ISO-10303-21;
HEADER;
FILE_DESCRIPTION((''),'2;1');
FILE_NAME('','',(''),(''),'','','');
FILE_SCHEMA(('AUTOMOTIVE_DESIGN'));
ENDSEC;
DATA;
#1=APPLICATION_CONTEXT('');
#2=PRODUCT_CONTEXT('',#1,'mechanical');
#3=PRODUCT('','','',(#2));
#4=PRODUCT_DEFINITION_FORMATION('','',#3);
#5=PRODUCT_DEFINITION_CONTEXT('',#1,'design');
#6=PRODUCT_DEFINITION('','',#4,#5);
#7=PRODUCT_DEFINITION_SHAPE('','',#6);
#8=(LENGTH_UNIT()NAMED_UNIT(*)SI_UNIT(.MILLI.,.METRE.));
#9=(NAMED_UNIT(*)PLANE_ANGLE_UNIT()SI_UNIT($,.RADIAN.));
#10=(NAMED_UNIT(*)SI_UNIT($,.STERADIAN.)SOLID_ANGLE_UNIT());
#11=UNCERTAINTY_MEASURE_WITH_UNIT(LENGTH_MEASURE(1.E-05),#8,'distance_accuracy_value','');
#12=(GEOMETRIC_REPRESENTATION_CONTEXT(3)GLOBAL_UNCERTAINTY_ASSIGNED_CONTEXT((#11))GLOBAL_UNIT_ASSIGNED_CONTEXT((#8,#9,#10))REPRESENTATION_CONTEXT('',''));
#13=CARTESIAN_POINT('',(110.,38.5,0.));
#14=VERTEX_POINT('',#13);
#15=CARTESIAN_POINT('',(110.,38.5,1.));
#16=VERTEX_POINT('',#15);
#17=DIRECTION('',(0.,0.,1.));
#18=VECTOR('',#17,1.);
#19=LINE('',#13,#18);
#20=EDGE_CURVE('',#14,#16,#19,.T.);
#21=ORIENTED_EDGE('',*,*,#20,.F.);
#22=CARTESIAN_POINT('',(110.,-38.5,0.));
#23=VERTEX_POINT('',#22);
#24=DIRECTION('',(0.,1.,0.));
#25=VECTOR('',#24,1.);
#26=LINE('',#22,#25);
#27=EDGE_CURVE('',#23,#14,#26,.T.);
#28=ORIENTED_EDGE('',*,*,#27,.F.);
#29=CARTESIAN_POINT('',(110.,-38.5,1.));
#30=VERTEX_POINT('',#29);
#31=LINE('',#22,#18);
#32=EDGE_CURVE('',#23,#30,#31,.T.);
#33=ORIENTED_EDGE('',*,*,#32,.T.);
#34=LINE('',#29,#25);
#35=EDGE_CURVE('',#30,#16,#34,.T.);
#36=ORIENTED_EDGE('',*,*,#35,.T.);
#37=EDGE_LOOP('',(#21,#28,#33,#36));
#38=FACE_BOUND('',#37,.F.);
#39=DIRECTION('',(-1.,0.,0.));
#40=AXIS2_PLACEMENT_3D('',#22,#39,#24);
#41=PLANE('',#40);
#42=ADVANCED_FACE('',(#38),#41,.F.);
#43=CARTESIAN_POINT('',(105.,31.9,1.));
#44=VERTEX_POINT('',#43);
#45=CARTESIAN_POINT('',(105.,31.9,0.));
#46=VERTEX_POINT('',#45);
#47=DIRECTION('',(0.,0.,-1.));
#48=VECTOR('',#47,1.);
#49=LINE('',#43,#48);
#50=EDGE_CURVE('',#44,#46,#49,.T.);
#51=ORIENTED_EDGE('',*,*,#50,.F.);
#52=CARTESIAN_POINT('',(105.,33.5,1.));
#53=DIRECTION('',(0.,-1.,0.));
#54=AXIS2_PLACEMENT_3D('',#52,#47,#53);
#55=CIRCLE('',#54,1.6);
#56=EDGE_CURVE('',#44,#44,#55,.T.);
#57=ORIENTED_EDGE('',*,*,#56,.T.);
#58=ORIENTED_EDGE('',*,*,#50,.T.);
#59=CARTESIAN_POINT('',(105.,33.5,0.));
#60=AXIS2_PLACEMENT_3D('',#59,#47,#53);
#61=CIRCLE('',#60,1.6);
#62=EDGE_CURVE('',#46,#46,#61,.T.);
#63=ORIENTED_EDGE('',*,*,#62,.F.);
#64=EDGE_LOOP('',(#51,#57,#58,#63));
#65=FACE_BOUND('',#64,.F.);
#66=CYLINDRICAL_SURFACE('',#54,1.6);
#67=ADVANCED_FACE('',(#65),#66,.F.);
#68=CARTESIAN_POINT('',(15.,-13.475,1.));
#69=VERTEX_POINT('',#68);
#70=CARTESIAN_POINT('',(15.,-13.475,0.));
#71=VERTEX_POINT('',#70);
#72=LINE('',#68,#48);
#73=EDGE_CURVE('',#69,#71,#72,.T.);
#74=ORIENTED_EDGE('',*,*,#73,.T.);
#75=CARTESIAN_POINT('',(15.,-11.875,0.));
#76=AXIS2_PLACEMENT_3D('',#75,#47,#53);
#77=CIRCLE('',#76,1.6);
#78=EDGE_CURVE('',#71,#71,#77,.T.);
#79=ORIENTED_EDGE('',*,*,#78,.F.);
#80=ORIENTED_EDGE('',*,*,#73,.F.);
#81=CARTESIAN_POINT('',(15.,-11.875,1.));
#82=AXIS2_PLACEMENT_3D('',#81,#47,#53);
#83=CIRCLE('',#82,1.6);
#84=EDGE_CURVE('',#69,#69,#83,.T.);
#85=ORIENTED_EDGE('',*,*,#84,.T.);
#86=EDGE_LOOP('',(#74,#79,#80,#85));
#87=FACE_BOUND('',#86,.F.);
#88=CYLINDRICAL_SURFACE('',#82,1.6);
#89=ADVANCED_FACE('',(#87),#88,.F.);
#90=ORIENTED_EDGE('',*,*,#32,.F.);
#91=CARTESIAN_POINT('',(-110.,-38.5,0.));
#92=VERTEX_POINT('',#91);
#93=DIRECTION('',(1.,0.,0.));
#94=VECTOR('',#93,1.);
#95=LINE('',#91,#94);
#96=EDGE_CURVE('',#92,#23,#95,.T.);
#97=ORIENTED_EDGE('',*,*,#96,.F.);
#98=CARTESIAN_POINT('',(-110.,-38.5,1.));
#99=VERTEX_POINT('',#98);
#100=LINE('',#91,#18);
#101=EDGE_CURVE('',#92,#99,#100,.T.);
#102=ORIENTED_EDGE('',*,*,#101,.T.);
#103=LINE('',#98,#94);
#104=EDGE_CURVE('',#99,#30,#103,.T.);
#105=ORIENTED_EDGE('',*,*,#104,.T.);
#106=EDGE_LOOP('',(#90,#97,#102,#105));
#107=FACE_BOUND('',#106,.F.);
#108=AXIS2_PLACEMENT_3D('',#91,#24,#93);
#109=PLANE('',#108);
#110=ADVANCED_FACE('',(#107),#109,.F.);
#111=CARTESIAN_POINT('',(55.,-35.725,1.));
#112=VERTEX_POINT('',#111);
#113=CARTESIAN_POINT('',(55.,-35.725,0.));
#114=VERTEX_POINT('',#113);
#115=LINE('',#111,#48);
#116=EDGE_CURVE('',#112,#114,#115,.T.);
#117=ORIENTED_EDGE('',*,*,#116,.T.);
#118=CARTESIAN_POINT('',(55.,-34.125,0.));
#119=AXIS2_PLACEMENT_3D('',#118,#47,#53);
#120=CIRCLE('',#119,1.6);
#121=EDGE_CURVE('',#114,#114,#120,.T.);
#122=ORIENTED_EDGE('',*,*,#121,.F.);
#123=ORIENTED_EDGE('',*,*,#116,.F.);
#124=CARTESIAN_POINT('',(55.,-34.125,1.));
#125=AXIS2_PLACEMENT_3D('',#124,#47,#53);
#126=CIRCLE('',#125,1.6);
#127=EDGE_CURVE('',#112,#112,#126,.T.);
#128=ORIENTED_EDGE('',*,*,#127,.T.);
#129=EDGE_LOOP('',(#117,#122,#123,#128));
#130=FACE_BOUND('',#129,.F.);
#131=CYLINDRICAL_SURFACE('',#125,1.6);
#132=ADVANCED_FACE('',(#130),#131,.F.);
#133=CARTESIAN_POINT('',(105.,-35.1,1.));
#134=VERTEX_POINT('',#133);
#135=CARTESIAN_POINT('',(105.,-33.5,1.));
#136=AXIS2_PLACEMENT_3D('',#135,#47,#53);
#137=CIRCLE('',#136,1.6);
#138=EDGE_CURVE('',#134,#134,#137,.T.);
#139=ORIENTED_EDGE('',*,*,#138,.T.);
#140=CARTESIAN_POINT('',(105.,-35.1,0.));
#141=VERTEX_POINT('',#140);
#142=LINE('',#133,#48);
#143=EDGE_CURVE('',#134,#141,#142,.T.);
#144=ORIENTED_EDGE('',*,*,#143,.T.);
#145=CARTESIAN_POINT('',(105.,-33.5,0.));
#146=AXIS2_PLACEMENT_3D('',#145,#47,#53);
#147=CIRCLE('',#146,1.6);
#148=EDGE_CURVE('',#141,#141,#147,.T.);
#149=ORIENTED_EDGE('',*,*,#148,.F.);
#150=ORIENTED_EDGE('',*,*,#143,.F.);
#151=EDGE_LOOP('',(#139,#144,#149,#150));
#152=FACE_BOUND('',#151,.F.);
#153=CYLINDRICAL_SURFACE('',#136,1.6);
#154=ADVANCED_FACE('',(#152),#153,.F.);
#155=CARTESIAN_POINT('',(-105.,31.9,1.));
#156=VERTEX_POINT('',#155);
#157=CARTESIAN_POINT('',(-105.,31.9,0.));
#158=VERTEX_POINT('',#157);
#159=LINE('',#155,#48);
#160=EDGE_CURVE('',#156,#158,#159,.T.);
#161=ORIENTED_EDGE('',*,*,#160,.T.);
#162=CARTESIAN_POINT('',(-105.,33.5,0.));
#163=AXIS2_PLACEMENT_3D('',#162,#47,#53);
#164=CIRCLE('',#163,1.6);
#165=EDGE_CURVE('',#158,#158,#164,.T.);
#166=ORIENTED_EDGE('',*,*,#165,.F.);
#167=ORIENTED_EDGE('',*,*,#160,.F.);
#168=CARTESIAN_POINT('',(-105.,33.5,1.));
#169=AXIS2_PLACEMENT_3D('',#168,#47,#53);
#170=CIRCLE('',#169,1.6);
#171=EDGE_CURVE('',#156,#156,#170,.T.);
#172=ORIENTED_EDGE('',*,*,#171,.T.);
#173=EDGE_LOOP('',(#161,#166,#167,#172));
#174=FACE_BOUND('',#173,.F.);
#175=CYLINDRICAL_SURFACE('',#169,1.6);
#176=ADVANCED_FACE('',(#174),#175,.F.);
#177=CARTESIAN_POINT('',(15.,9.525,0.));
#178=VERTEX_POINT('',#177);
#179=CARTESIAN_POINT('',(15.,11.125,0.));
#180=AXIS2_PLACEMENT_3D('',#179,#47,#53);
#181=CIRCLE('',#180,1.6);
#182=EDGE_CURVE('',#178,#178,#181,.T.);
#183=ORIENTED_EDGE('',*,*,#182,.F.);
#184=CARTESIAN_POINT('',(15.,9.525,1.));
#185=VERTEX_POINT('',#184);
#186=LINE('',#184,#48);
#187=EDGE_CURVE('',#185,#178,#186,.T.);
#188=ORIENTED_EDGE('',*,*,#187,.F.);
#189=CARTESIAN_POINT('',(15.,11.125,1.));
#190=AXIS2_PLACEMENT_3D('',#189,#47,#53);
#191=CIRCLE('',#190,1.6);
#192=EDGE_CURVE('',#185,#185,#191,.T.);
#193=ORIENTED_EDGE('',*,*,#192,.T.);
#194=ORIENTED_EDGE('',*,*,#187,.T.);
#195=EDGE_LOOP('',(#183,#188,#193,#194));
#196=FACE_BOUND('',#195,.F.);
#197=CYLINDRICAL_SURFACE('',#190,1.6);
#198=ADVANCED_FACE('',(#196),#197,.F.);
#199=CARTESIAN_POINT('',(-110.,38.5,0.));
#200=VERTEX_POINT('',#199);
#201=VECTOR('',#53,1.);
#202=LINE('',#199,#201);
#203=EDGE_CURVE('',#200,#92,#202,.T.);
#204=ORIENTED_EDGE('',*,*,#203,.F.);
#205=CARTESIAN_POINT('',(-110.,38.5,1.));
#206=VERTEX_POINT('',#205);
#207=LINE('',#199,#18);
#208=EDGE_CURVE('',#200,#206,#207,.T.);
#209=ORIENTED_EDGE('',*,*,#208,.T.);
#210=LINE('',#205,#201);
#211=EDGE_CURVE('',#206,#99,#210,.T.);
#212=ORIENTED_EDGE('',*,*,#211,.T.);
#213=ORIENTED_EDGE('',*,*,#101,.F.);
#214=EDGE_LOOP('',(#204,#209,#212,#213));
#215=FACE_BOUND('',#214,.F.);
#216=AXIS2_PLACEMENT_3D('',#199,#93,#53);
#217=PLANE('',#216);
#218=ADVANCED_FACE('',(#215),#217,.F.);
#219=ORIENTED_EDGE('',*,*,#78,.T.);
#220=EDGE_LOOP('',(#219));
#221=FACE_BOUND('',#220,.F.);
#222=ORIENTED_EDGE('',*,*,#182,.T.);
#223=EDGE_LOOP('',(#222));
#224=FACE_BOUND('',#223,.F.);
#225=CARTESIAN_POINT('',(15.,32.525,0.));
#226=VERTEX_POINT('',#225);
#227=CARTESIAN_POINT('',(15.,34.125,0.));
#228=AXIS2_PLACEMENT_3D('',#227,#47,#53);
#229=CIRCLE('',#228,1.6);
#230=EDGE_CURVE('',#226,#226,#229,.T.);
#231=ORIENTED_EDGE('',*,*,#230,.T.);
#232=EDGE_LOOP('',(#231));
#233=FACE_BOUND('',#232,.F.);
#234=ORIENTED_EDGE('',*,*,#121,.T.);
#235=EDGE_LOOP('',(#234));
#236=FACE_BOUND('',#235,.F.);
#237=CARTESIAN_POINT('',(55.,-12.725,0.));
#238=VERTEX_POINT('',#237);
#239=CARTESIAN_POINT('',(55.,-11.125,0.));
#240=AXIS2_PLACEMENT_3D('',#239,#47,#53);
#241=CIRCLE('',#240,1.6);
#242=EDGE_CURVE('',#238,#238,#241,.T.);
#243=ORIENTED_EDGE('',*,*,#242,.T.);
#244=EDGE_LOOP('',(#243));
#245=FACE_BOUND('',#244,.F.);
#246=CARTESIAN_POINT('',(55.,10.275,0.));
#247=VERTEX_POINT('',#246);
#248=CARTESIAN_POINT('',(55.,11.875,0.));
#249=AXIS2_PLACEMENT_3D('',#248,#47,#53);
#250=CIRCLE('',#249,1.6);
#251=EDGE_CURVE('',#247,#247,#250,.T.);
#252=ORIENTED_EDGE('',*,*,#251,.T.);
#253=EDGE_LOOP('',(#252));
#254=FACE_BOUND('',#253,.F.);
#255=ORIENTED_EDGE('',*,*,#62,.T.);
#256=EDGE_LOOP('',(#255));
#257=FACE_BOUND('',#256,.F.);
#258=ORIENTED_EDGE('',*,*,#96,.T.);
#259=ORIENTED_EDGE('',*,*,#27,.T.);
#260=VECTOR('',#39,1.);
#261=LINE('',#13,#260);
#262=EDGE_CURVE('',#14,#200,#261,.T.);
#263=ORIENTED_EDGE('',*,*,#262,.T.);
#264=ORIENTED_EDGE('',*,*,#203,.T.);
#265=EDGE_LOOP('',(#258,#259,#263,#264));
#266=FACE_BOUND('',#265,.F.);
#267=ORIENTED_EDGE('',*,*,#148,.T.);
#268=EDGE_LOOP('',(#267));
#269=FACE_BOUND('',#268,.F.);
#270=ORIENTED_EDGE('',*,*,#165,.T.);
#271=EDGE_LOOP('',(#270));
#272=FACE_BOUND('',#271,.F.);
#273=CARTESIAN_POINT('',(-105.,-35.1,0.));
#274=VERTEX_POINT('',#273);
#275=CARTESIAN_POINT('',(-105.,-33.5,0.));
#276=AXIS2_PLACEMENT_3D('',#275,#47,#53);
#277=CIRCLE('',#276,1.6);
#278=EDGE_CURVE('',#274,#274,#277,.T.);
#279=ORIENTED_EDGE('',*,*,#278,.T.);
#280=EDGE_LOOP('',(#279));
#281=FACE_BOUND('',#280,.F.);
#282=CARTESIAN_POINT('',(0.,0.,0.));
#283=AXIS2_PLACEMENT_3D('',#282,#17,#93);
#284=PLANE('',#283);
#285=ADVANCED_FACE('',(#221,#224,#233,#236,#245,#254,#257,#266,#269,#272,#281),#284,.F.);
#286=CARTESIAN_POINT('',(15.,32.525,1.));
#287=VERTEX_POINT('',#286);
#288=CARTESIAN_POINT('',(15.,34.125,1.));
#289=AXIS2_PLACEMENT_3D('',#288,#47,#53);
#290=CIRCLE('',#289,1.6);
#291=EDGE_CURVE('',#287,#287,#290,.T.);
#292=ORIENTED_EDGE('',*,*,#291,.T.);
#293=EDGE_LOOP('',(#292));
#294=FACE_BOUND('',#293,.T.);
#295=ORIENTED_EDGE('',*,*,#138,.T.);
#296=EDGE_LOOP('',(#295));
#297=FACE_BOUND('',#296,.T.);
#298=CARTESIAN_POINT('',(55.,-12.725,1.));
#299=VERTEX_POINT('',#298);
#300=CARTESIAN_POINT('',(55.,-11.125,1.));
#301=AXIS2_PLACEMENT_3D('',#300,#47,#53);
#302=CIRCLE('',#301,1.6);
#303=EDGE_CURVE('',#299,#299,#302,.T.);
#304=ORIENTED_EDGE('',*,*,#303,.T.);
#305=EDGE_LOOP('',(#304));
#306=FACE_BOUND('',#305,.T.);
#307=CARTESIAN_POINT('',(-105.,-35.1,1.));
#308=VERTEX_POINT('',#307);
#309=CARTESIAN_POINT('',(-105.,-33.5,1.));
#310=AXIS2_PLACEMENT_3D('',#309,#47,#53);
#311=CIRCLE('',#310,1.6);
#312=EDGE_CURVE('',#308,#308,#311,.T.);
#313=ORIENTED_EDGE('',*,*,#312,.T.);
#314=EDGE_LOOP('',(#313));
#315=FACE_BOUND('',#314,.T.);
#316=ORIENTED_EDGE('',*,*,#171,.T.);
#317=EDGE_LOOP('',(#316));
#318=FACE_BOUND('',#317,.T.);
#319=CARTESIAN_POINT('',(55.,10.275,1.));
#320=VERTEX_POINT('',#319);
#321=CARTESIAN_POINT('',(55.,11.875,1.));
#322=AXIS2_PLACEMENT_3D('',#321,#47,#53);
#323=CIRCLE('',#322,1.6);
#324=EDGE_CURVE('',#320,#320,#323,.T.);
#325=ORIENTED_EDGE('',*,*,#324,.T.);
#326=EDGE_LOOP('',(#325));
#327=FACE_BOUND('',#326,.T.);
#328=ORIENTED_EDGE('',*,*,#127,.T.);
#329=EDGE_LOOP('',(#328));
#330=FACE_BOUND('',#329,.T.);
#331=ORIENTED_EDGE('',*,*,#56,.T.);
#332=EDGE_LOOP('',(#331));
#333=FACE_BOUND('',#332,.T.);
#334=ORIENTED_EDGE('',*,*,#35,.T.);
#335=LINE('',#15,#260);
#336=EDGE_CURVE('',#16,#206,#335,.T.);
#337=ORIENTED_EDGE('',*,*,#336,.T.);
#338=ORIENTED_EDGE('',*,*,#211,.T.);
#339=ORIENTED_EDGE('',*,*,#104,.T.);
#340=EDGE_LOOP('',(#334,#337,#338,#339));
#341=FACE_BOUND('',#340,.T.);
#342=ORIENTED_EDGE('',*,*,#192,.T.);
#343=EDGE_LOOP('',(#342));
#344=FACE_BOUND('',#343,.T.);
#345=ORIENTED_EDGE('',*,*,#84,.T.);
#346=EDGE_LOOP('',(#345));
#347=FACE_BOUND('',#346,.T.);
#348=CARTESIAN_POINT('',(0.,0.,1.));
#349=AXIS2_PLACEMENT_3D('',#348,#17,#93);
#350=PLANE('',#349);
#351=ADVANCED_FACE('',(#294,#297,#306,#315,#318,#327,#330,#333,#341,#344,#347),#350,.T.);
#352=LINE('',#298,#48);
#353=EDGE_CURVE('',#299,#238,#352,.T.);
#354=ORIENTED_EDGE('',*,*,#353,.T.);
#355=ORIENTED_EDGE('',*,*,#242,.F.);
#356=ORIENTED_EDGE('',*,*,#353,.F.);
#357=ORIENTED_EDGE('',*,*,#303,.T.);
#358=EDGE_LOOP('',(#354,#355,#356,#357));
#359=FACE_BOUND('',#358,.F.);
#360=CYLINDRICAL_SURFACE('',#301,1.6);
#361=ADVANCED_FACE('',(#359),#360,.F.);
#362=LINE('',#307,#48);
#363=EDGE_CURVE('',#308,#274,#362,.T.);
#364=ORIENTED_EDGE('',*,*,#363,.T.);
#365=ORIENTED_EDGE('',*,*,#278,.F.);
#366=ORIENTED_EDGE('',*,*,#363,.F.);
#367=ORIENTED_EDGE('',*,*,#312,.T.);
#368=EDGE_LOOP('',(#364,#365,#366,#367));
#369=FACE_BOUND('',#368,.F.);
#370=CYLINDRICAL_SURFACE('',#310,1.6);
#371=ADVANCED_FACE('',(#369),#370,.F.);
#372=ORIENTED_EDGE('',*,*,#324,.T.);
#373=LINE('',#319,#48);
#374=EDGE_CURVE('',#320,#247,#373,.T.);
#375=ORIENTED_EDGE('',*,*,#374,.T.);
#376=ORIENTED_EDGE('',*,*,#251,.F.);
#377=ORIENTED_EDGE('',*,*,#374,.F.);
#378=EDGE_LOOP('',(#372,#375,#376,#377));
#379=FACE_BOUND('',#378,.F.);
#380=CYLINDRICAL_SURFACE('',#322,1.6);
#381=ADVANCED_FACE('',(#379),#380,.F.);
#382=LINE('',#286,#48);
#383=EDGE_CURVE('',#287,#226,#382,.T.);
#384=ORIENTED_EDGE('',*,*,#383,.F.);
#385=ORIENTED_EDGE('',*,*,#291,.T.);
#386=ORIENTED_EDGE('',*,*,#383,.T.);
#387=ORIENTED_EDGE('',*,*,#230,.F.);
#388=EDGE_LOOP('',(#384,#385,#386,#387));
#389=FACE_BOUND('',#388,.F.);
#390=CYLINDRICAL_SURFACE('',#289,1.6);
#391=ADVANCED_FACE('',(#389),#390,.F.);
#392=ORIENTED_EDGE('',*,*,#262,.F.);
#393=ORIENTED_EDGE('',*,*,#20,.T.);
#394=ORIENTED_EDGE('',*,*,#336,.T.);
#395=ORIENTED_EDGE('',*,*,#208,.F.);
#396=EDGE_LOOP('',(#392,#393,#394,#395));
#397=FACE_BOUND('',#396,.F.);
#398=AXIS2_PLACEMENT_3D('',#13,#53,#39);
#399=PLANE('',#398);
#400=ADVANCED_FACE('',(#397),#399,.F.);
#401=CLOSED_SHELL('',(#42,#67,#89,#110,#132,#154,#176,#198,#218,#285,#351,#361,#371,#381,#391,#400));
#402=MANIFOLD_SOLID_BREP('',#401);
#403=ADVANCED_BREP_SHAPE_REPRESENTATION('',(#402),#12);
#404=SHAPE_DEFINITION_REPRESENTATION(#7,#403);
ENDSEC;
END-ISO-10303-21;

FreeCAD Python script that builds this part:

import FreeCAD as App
import Part
import Sketcher
from FreeCAD import Vector


def add_polygon(sketch, points):
    """Adds a closed chain of lines whose ends are joined by coincident constraints."""
    first, n = sketch.GeometryCount, len(points)
    for a, b in zip(points, points[1:] + points[:1]):
        sketch.addGeometry(Part.LineSegment(App.Vector(*a, 0), App.Vector(*b, 0)), False)
    for i in range(n):
        sketch.addConstraint(Sketcher.Constraint("Coincident", first + i, 2, first + (i + 1) % n, 1))

doc = App.newDocument("Part")
params = doc.addObject("Spreadsheet::Sheet", "Params")
for row, (alias, value) in enumerate([
    ("sketch1_width", "220 mm"),
    ("sketch1_height", "77 mm"),
    ("pad1_length", "1 mm"),
    ("sketch2_diameter", "3.2 mm"),
    ("hole_diameter", "3.2 mm"),
    ("hole_depth", "1 mm"),
    ("sketch3_diameter", "3.2 mm"),
    ("hole2_diameter", "3.2 mm"),
], start=1):
    params.set(f"A{row}", alias)
    params.set(f"B{row}", "=" + value)
    params.setAlias(f"B{row}", alias)

body = doc.addObject("PartDesign::Body", "Body")

# Sketch on XY plane
sketch1 = body.newObject("Sketcher::SketchObject", "Sketch")
sketch1.AttachmentSupport = (doc.getObject("XY_Plane"), [""])
sketch1.MapMode = "FlatFace"
add_polygon(sketch1, [(-110, 38), (-110, -38), (110, -38), (110, 38)])  # lines 0-3
sketch1.addConstraint([
    Sketcher.Constraint("Vertical", 0),
    Sketcher.Constraint("Horizontal", 1),
    Sketcher.Constraint("Vertical", 2),
    Sketcher.Constraint("Horizontal", 3),
    Sketcher.Constraint("Symmetric", 0, 2, 2, 2, -1, 1),
    Sketcher.Constraint("DistanceX", 1, 1, 1, 2, 220.0),
    Sketcher.Constraint("DistanceY", 0, 2, 0, 1, 77.0),
])
sketch1.setExpression("Constraints[9]", "Params.sketch1_width")
sketch1.setExpression("Constraints[10]", "Params.sketch1_height")
pad1 = body.newObject("PartDesign::Pad", "Pad")
pad1.Profile = sketch1
pad1.setExpression("Length", "Params.pad1_length")

# Sketch on XY plane
sketch2 = body.newObject("Sketcher::SketchObject", "Sketch001")
sketch2.AttachmentSupport = (doc.getObject("XY_Plane"), [""])
sketch2.MapMode = "FlatFace"
sketch2.AttachmentOffset = App.Placement(Vector(0, 0, 1), App.Rotation())
sketch2.addGeometry([
    Part.Circle(Vector(-105, 33.5, 0), Vector(0, 0, 1), 1.6),
    Part.Circle(Vector(-105, -33.5, 0), Vector(0, 0, 1), 1.6),
    Part.Circle(Vector(105, -33.5, 0), Vector(0, 0, 1), 1.6),
    Part.Circle(Vector(105, 33.5, 0), Vector(0, 0, 1), 1.6),
], False)
sketch2.addConstraint([
    Sketcher.Constraint("Equal", 0, 1),
    Sketcher.Constraint("Equal", 1, 2),
    Sketcher.Constraint("Equal", 2, 3),
    Sketcher.Constraint("Symmetric", 0, 3, 2, 3, -1, 1),
    Sketcher.Constraint("Symmetric", 1, 3, 3, 3, -1, 1),
    Sketcher.Constraint("Symmetric", 1, 3, 2, 3, -2),
    Sketcher.Constraint("Diameter", 0, 3.2),
    Sketcher.Constraint("DistanceX", 0, 3, -1, 1, 105.0),
    Sketcher.Constraint("DistanceY", 1, 3, 0, 3, 67.0),
])
sketch2.setExpression("Constraints[6]", "Params.sketch2_diameter")
doc.recompute()
hole = body.newObject("PartDesign::Hole", "Hole")
hole.Profile = sketch2
hole.ThreadType = "None"
hole.setExpression("Diameter", "Params.hole_diameter")
hole.DepthType = "Dimension"
hole.setExpression("Depth", "Params.hole_depth")
hole.DrillPoint = "Flat"

# Sketch on XY plane
sketch3 = body.newObject("Sketcher::SketchObject", "Sketch002")
sketch3.AttachmentSupport = (doc.getObject("XY_Plane"), [""])
sketch3.MapMode = "FlatFace"
sketch3.AttachmentOffset = App.Placement(Vector(0, 0, 1), App.Rotation())
sketch3.addGeometry([
    Part.Circle(Vector(15, 34.1, 0), Vector(0, 0, 1), 1.6),  # 0
    Part.Circle(Vector(55, 11.9, 0), Vector(0, 0, 1), 1.6),  # 1
    Part.Circle(Vector(15, 11.1, 0), Vector(0, 0, 1), 1.6),  # 2
    Part.Circle(Vector(55, -11.1, 0), Vector(0, 0, 1), 1.6),  # 3
    Part.Circle(Vector(15, -11.9, 0), Vector(0, 0, 1), 1.6),  # 4
    Part.Circle(Vector(55, -34.1, 0), Vector(0, 0, 1), 1.6),  # 5
], False)
sketch3.addConstraint([
    Sketcher.Constraint("Equal", 0, 1),
    Sketcher.Constraint("Equal", 1, 2),
    Sketcher.Constraint("Equal", 2, 3),
    Sketcher.Constraint("Equal", 3, 4),
    Sketcher.Constraint("Equal", 4, 5),
    Sketcher.Constraint("Vertical", 0, 3, 2, 3),
    Sketcher.Constraint("Vertical", 1, 3, 3, 3),
    Sketcher.Constraint("Vertical", 2, 3, 4, 3),
    Sketcher.Constraint("Vertical", 3, 3, 5, 3),
    Sketcher.Constraint("Diameter", 0, 3.2),
    Sketcher.Constraint("DistanceX", -1, 1, 0, 3, 15.0),
    Sketcher.Constraint("DistanceX", -1, 1, 1, 3, 55.0),
    Sketcher.Constraint("DistanceY", 2, 3, 0, 3, 23.0),
    Sketcher.Constraint("DistanceY", 3, 3, 1, 3, 23.0),
    Sketcher.Constraint("DistanceY", 4, 3, 2, 3, 23.0),
    Sketcher.Constraint("DistanceY", 5, 3, 3, 3, 23.0),
    Sketcher.Constraint("DistanceY", 1, 3, 0, 3, 22.25),
    Sketcher.Constraint("DistanceY", -1, 1, 0, 3, 34.125),
])
sketch3.setExpression("Constraints[9]", "Params.sketch3_diameter")
doc.recompute()
hole2 = body.newObject("PartDesign::Hole", "Hole001")
hole2.Profile = sketch3
hole2.ThreadType = "None"
hole2.setExpression("Diameter", "Params.hole2_diameter")
hole2.DepthType = "ThroughAll"

doc.recompute()
